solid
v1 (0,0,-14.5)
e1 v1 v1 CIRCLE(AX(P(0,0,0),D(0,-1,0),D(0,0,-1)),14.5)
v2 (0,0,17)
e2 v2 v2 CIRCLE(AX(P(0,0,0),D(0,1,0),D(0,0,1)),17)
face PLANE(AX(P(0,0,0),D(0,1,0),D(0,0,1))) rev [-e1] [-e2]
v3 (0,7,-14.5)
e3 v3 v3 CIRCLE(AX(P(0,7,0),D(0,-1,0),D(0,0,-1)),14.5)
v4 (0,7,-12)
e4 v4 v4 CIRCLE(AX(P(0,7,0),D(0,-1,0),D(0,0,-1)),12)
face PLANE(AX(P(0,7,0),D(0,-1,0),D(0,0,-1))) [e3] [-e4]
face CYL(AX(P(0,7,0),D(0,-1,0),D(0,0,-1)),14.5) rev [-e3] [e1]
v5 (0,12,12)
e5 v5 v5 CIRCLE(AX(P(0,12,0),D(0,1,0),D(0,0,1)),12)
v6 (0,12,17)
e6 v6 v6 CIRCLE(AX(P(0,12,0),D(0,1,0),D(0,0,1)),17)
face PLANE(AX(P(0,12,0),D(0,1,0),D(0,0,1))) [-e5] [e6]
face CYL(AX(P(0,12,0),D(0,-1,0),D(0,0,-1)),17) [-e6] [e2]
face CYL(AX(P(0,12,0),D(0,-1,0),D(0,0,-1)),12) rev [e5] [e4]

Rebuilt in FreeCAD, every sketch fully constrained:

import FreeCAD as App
import Part
import Sketcher
from FreeCAD import Vector

doc = App.newDocument("Part")
body = doc.addObject("PartDesign::Body", "Body")

# Sketch on XZ plane
sketch1 = body.newObject("Sketcher::SketchObject", "Sketch")
sketch1.AttachmentSupport = (doc.getObject("XZ_Plane"), [""])
sketch1.MapMode = "FlatFace"
sketch1.addGeometry([
    Part.Circle(Vector(0, 0, 0), Vector(0, 0, 1), 17),
    Part.Circle(Vector(0, 0, 0), Vector(0, 0, 1), 12),
], False)
sketch1.addConstraint([
    Sketcher.Constraint("Coincident", 0, 3, -1, 1),
    Sketcher.Constraint("Coincident", 1, 3, -1, 1),
    Sketcher.Constraint("Diameter", 0, 34.0),
    Sketcher.Constraint("Diameter", 1, 24.0),
])
pad1 = body.newObject("PartDesign::Pad", "Pad")
pad1.Profile = sketch1
pad1.Length = 12
pad1.Reversed = True

# Sketch on XZ plane
sketch2 = body.newObject("Sketcher::SketchObject", "Sketch001")
sketch2.AttachmentSupport = (doc.getObject("XZ_Plane"), [""])
sketch2.MapMode = "FlatFace"
sketch2.addGeometry(Part.Circle(Vector(0, 0, 0), Vector(0, 0, 1), 14.5), False)
sketch2.addConstraint([
    Sketcher.Constraint("Coincident", 0, 3, -1, 1),
    Sketcher.Constraint("Diameter", 0, 29.0),
])
pocket1 = body.newObject("PartDesign::Pocket", "Pocket")
pocket1.Profile = sketch2
pocket1.Length = 7

doc.recompute()
